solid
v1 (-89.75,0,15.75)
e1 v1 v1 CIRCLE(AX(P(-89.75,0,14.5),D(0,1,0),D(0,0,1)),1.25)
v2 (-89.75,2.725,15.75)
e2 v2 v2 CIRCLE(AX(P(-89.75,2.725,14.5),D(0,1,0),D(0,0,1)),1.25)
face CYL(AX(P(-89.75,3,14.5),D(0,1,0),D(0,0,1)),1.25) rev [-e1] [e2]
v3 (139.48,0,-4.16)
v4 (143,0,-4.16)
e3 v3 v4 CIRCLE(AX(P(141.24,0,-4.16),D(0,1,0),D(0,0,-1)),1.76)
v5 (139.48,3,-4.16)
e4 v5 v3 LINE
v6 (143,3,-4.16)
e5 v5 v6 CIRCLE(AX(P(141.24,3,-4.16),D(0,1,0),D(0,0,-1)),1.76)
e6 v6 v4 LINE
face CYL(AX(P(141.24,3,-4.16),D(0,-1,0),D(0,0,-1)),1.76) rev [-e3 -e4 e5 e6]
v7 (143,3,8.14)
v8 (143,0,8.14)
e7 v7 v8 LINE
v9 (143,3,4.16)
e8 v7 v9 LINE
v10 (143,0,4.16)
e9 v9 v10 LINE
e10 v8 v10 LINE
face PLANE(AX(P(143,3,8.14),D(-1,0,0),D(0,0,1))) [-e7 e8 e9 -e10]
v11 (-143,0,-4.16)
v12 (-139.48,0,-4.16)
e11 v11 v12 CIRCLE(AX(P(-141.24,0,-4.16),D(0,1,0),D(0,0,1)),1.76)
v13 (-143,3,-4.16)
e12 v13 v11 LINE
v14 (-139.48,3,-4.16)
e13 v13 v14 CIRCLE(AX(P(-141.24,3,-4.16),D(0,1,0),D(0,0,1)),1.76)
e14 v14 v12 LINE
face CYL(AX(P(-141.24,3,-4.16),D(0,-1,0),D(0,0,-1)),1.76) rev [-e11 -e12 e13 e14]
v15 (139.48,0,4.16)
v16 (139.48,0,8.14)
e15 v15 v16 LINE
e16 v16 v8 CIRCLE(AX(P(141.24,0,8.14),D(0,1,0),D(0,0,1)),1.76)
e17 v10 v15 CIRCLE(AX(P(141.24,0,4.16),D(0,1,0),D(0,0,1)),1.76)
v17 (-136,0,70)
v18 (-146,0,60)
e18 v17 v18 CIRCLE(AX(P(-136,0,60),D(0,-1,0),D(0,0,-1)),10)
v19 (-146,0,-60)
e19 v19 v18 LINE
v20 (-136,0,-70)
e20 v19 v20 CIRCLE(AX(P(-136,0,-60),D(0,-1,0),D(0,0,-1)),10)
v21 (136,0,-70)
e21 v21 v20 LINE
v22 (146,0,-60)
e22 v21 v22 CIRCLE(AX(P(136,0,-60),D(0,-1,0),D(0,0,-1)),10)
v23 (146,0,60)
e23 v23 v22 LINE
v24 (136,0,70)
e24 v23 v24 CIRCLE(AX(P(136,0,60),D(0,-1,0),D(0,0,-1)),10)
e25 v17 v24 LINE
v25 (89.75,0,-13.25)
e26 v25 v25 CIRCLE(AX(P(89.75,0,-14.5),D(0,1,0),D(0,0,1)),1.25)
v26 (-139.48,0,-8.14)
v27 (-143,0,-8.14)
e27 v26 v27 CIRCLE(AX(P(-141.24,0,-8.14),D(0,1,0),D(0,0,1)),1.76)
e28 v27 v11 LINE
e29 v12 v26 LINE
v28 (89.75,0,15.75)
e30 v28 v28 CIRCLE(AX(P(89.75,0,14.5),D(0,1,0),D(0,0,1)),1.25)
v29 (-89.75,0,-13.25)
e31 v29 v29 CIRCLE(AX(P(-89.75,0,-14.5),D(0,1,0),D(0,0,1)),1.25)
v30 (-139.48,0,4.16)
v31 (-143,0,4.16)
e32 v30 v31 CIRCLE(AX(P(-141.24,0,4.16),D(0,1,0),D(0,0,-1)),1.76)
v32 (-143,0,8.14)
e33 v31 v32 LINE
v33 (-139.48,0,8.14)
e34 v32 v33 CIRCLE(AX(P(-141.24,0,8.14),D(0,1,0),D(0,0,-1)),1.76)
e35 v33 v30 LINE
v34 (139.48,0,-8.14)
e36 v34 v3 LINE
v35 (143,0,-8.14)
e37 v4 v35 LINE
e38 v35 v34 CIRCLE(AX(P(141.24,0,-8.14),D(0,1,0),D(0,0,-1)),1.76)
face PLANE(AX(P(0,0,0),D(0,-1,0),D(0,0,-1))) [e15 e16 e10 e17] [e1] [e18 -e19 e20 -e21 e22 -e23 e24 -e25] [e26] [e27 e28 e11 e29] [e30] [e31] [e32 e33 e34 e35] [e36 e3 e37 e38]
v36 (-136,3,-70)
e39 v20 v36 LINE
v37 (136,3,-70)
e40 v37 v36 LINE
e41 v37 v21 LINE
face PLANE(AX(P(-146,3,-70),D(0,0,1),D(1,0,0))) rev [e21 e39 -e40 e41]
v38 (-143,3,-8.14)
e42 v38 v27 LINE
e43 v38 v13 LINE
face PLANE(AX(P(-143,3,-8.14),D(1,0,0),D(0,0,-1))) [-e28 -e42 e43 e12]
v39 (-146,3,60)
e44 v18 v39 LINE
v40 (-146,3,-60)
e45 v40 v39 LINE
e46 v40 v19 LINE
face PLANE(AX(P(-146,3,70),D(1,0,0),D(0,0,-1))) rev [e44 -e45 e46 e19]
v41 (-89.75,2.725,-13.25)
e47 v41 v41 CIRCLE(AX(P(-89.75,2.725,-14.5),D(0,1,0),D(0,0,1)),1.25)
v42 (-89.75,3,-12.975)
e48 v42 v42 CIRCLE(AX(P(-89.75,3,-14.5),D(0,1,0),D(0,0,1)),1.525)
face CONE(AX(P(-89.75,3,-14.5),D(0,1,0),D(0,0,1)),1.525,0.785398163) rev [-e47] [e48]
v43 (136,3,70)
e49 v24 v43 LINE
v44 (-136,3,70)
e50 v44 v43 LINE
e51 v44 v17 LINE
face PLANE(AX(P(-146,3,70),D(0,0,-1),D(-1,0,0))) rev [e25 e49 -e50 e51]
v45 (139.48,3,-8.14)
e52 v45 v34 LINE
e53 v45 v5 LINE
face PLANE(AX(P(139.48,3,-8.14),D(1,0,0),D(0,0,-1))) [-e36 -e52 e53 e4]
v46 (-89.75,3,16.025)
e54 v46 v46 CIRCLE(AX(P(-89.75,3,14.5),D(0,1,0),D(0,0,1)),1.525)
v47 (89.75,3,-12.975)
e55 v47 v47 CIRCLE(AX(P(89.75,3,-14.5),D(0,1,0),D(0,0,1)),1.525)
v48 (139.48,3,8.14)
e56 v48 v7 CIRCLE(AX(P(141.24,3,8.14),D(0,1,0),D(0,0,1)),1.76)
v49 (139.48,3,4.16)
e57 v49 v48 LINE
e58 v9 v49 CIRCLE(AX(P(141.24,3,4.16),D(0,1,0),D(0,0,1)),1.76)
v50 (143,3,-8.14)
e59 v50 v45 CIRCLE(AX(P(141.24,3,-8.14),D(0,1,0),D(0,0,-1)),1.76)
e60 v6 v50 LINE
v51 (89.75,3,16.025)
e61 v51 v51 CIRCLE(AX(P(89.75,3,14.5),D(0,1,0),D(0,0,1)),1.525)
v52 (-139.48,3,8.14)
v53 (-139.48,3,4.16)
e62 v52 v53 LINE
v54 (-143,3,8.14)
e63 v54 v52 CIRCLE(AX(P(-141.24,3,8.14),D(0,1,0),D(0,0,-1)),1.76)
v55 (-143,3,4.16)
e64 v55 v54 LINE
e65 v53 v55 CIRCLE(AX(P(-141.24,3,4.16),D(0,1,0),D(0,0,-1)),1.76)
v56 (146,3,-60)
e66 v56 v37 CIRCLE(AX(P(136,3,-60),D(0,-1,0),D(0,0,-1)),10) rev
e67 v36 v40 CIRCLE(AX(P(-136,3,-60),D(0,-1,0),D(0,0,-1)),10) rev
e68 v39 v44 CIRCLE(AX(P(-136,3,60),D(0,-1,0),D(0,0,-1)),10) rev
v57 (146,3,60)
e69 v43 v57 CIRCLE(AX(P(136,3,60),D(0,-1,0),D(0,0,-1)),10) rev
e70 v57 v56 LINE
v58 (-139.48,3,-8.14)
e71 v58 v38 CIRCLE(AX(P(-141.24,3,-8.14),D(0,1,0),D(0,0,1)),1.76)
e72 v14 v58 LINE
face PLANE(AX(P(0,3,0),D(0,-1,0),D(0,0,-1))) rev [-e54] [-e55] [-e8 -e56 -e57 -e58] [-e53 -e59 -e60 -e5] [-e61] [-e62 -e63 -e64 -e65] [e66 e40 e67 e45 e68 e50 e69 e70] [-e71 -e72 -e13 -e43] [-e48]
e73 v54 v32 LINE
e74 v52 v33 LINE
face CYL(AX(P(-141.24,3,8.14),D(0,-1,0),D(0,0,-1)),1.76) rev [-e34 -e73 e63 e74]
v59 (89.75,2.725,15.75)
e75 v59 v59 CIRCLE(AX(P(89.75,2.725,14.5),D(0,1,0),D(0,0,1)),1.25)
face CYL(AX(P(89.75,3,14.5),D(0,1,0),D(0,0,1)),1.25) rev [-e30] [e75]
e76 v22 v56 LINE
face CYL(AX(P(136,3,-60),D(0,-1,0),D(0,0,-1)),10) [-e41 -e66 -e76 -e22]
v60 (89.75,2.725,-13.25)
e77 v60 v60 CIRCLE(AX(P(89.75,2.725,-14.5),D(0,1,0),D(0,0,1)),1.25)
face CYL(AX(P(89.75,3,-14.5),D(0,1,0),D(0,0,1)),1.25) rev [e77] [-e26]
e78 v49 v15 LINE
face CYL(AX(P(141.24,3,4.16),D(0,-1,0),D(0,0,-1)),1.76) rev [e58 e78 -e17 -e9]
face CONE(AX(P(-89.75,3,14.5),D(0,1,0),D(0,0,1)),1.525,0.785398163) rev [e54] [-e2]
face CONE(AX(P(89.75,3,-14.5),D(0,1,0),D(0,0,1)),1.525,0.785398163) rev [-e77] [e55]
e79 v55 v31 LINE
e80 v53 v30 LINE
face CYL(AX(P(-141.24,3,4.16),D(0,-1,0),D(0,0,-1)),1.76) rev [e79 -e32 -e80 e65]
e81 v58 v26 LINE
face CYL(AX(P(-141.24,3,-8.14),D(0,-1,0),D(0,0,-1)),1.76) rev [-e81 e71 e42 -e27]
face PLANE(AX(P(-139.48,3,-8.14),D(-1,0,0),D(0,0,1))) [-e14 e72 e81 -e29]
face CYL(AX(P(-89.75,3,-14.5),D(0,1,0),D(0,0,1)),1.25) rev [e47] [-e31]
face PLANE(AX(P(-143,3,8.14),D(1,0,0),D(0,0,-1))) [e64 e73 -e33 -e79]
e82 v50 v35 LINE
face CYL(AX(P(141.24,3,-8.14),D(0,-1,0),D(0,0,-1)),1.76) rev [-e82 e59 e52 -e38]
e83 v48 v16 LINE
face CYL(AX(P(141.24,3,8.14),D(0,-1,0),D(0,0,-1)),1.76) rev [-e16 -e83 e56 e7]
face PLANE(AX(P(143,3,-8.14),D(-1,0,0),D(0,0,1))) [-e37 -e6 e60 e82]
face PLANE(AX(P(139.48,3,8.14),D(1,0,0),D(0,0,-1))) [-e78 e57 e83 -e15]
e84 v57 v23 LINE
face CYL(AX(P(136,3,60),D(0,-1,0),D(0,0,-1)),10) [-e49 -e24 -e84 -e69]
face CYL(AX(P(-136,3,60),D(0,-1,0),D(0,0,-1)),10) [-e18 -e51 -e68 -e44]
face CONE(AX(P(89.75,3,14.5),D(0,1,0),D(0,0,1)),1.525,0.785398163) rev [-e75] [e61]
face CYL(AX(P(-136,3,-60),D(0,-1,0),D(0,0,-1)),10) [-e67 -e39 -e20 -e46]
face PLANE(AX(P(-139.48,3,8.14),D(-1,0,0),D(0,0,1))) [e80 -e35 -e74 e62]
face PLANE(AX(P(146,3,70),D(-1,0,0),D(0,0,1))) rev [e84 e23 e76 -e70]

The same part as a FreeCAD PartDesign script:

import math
import FreeCAD as App
import Part
import Sketcher
from FreeCAD import Vector
Q = App.Units.Quantity


def edges_at(feature, points):
    """Names of the edges that pass closest to the given points."""
    edges = feature.Shape.Edges
    near = lambda p: min(range(len(edges)), key=lambda i: edges[i].distToShape(Part.Vertex(*p))[0])
    return sorted({f"Edge{near(p) + 1}" for p in points})

doc = App.newDocument("Part")
params = doc.addObject("Spreadsheet::Sheet", "Params")
for row, (alias, value) in enumerate([
    ("sketch1_width", "292 mm"),
    ("sketch1_height", "140 mm"),
    ("sketch1_radius", "1.76 mm"),
    ("sketch1_height2", "3.98 mm"),
    ("pad1_length", "3 mm"),
    ("sketch2_diameter", "2.5 mm"),
    ("hole_diameter", "2.5 mm"),
    ("hole_csink_diameter", "3.05 mm"),
    ("sketch3_diameter", "2.5 mm"),
    ("hole2_diameter", "2.5 mm"),
    ("hole2_csink_diameter", "3.05 mm"),
    ("fillet_radius", "10 mm"),
], start=1):
    params.set(f"A{row}", alias)
    params.set(f"B{row}", "=" + value)
    params.setAlias(f"B{row}", alias)

body = doc.addObject("PartDesign::Body", "Body")

# Sketch on XZ plane
sketch1 = body.newObject("Sketcher::SketchObject", "Sketch")
sketch1.AttachmentSupport = (doc.getObject("XZ_Plane"), [""])
sketch1.MapMode = "FlatFace"
sketch1.addGeometry([
    Part.LineSegment(Vector(-146, -70, 0), Vector(-146, 70, 0)),  # 0
    Part.LineSegment(Vector(-146, 70, 0), Vector(146, 70, 0)),  # 1
    Part.LineSegment(Vector(146, 70, 0), Vector(146, -70, 0)),  # 2
    Part.LineSegment(Vector(146, -70, 0), Vector(-146, -70, 0)),  # 3
    Part.LineSegment(Vector(-139.5, 4.2, 0), Vector(-139.5, 8.1, 0)),  # 4
    Part.ArcOfCircle(Part.Circle(Vector(-141.2, 8.1, 0), Vector(0, 0, 1), 1.8), math.radians(0), math.radians(180)),  # 5
    Part.LineSegment(Vector(-143, 8.1, 0), Vector(-143, 4.2, 0)),  # 6
    Part.ArcOfCircle(Part.Circle(Vector(-141.2, 4.2, 0), Vector(0, 0, 1), 1.8), math.radians(180), math.radians(360)),  # 7
    Part.ArcOfCircle(Part.Circle(Vector(141.2, 8.1, 0), Vector(0, 0, 1), 1.8), math.radians(0), math.radians(180)),  # 8
    Part.LineSegment(Vector(139.5, 8.1, 0), Vector(139.5, 4.2, 0)),  # 9
    Part.ArcOfCircle(Part.Circle(Vector(141.2, 4.2, 0), Vector(0, 0, 1), 1.8), math.radians(180), math.radians(360)),  # 10
    Part.LineSegment(Vector(143, 4.2, 0), Vector(143, 8.1, 0)),  # 11
    Part.ArcOfCircle(Part.Circle(Vector(-141.2, -8.1, 0), Vector(0, 0, 1), 1.8), math.radians(180), math.radians(360)),  # 12
    Part.LineSegment(Vector(-139.5, -8.1, 0), Vector(-139.5, -4.2, 0)),  # 13
    Part.ArcOfCircle(Part.Circle(Vector(-141.2, -4.2, 0), Vector(0, 0, 1), 1.8), math.radians(0), math.radians(180)),  # 14
    Part.LineSegment(Vector(-143, -4.2, 0), Vector(-143, -8.1, 0)),  # 15
    Part.LineSegment(Vector(139.5, -4.2, 0), Vector(139.5, -8.1, 0)),  # 16
    Part.ArcOfCircle(Part.Circle(Vector(141.2, -8.1, 0), Vector(0, 0, 1), 1.8), math.radians(180), math.radians(360)),  # 17
    Part.LineSegment(Vector(143, -8.1, 0), Vector(143, -4.2, 0)),  # 18
    Part.ArcOfCircle(Part.Circle(Vector(141.2, -4.2, 0), Vector(0, 0, 1), 1.8), math.radians(0), math.radians(180)),  # 19
], False)
sketch1.addConstraint([
    Sketcher.Constraint("Coincident", 0, 2, 1, 1),
    Sketcher.Constraint("Coincident", 1, 2, 2, 1),
    Sketcher.Constraint("Coincident", 2, 2, 3, 1),
    Sketcher.Constraint("Coincident", 3, 2, 0, 1),
    Sketcher.Constraint("Tangent", 4, 2, 5, 1),
    Sketcher.Constraint("Tangent", 5, 2, 6, 1),
    Sketcher.Constraint("Tangent", 6, 2, 7, 1),
    Sketcher.Constraint("Tangent", 7, 2, 4, 1),
    Sketcher.Constraint("Tangent", 8, 2, 9, 1),
    Sketcher.Constraint("Tangent", 9, 2, 10, 1),
    Sketcher.Constraint("Tangent", 10, 2, 11, 1),
    Sketcher.Constraint("Tangent", 11, 2, 8, 1),
    Sketcher.Constraint("Tangent", 12, 2, 13, 1),
    Sketcher.Constraint("Tangent", 13, 2, 14, 1),
    Sketcher.Constraint("Tangent", 14, 2, 15, 1),
    Sketcher.Constraint("Tangent", 15, 2, 12, 1),
    Sketcher.Constraint("Tangent", 16, 2, 17, 1),
    Sketcher.Constraint("Tangent", 17, 2, 18, 1),
    Sketcher.Constraint("Tangent", 18, 2, 19, 1),
    Sketcher.Constraint("Tangent", 19, 2, 16, 1),
    Sketcher.Constraint("Vertical", 0),
    Sketcher.Constraint("Horizontal", 1),
    Sketcher.Constraint("Vertical", 2),
    Sketcher.Constraint("Horizontal", 3),
    Sketcher.Constraint("Vertical", 4),
    Sketcher.Constraint("Vertical", 6),
    Sketcher.Constraint("Vertical", 9),
    Sketcher.Constraint("Vertical", 11),
    Sketcher.Constraint("Vertical", 13),
    Sketcher.Constraint("Vertical", 15),
    Sketcher.Constraint("Vertical", 16),
    Sketcher.Constraint("Vertical", 18),
    Sketcher.Constraint("Equal", 7, 8),
    Sketcher.Constraint("Equal", 10, 12),
    Sketcher.Constraint("Equal", 14, 17),
    Sketcher.Constraint("Symmetric", 8, 3, 12, 3, -1, 1),
    Sketcher.Constraint("Symmetric", 5, 3, 17, 3, -1, 1),
    Sketcher.Constraint("Symmetric", 0, 2, 2, 2, -1, 1),
    Sketcher.Constraint("Symmetric", 5, 3, 8, 3, -2),
    Sketcher.Constraint("Horizontal", 7, 3, 10, 3),
    Sketcher.Constraint("Horizontal", 14, 3, 19, 3),
    Sketcher.Constraint("Equal", 11, 13),
    Sketcher.Constraint("DistanceX", 1, 1, 1, 2, Q("292 mm")),
    Sketcher.Constraint("DistanceY", 0, 1, 0, 2, Q("140 mm")),
    Sketcher.Constraint("Radius", 5, Q("1.76 mm")),
    Sketcher.Constraint("DistanceX", 5, 2, -1, 1, Q("143 mm")),
    Sketcher.Constraint("DistanceY", 4, 1, 4, 2, Q("3.98 mm")),
    Sketcher.Constraint("DistanceY", 12, 3, 7, 3, Q("12.3 mm")),
])
sketch1.setExpression("Constraints[42]", "Params.sketch1_width")
sketch1.setExpression("Constraints[43]", "Params.sketch1_height")
sketch1.setExpression("Constraints[44]", "Params.sketch1_radius")
sketch1.setExpression("Constraints[46]", "Params.sketch1_height2")
pad1 = body.newObject("PartDesign::Pad", "Pad")
pad1.Profile = sketch1
pad1.setExpression("Length", "Params.pad1_length")
pad1.Reversed = True

# Sketch on XZ plane
sketch2 = body.newObject("Sketcher::SketchObject", "Sketch001")
sketch2.AttachmentSupport = (doc.getObject("XZ_Plane"), [""])
sketch2.MapMode = "FlatFace"
sketch2.AttachmentOffset = App.Placement(Vector(0, 0, -3), App.Rotation())
sketch2.addGeometry(Part.Circle(Vector(-89.8, -14.5, 0), Vector(0, 0, 1), 1.2), False)
sketch2.addConstraint([
    Sketcher.Constraint("Diameter", 0, Q("2.5 mm")),
    Sketcher.Constraint("DistanceY", 0, 3, -1, 1, Q("14.5 mm")),
    Sketcher.Constraint("DistanceX", 0, 3, -1, 1, Q("89.75 mm")),
])
sketch2.setExpression("Constraints[0]", "Params.sketch2_diameter")
doc.recompute()
hole = body.newObject("PartDesign::Hole", "Hole")
hole.Profile = sketch2
hole.ThreadType = "None"
hole.setExpression("Diameter", "Params.hole_diameter")
hole.DepthType = "ThroughAll"
hole.HoleCutType = "Countersink"
hole.setExpression("HoleCutDiameter", "Params.hole_csink_diameter")
hole.HoleCutCountersinkAngle = 90
hole.Reversed = True
doc.recompute()

mirrored = body.newObject("PartDesign::Mirrored", "Mirrored")
mirrored.Originals = [hole]
mirrored.MirrorPlane = (doc.getObject("YZ_Plane"), [""])
body.Tip = mirrored
doc.recompute()

mirrored2 = body.newObject("PartDesign::Mirrored", "Mirrored001")
mirrored2.Originals = [hole]
mirrored2.MirrorPlane = (doc.getObject("XY_Plane"), [""])
body.Tip = mirrored2

# Sketch on XZ plane
sketch3 = body.newObject("Sketcher::SketchObject", "Sketch002")
sketch3.AttachmentSupport = (doc.getObject("XZ_Plane"), [""])
sketch3.MapMode = "FlatFace"
sketch3.AttachmentOffset = App.Placement(Vector(0, 0, -3), App.Rotation())
sketch3.addGeometry(Part.Circle(Vector(89.8, 14.5, 0), Vector(0, 0, 1), 1.2), False)
sketch3.addConstraint([
    Sketcher.Constraint("Diameter", 0, Q("2.5 mm")),
    Sketcher.Constraint("DistanceY", -1, 1, 0, 3, Q("14.5 mm")),
    Sketcher.Constraint("DistanceX", -1, 1, 0, 3, Q("89.75 mm")),
])
sketch3.setExpression("Constraints[0]", "Params.sketch3_diameter")
doc.recompute()
hole2 = body.newObject("PartDesign::Hole", "Hole001")
hole2.Profile = sketch3
hole2.ThreadType = "None"
hole2.setExpression("Diameter", "Params.hole2_diameter")
hole2.DepthType = "ThroughAll"
hole2.HoleCutType = "Countersink"
hole2.setExpression("HoleCutDiameter", "Params.hole2_csink_diameter")
hole2.HoleCutCountersinkAngle = 90
hole2.Reversed = True
doc.recompute()

fillet = body.newObject("PartDesign::Fillet", "Fillet")
fillet.Base = (hole2, edges_at(hole2, [
    (146, 1.5, 70),
    (-146, 1.5, 70),
    (-146, 1.5, -70),
    (146, 1.5, -70),
]))
fillet.setExpression("Radius", "Params.fillet_radius")

doc.recompute()
